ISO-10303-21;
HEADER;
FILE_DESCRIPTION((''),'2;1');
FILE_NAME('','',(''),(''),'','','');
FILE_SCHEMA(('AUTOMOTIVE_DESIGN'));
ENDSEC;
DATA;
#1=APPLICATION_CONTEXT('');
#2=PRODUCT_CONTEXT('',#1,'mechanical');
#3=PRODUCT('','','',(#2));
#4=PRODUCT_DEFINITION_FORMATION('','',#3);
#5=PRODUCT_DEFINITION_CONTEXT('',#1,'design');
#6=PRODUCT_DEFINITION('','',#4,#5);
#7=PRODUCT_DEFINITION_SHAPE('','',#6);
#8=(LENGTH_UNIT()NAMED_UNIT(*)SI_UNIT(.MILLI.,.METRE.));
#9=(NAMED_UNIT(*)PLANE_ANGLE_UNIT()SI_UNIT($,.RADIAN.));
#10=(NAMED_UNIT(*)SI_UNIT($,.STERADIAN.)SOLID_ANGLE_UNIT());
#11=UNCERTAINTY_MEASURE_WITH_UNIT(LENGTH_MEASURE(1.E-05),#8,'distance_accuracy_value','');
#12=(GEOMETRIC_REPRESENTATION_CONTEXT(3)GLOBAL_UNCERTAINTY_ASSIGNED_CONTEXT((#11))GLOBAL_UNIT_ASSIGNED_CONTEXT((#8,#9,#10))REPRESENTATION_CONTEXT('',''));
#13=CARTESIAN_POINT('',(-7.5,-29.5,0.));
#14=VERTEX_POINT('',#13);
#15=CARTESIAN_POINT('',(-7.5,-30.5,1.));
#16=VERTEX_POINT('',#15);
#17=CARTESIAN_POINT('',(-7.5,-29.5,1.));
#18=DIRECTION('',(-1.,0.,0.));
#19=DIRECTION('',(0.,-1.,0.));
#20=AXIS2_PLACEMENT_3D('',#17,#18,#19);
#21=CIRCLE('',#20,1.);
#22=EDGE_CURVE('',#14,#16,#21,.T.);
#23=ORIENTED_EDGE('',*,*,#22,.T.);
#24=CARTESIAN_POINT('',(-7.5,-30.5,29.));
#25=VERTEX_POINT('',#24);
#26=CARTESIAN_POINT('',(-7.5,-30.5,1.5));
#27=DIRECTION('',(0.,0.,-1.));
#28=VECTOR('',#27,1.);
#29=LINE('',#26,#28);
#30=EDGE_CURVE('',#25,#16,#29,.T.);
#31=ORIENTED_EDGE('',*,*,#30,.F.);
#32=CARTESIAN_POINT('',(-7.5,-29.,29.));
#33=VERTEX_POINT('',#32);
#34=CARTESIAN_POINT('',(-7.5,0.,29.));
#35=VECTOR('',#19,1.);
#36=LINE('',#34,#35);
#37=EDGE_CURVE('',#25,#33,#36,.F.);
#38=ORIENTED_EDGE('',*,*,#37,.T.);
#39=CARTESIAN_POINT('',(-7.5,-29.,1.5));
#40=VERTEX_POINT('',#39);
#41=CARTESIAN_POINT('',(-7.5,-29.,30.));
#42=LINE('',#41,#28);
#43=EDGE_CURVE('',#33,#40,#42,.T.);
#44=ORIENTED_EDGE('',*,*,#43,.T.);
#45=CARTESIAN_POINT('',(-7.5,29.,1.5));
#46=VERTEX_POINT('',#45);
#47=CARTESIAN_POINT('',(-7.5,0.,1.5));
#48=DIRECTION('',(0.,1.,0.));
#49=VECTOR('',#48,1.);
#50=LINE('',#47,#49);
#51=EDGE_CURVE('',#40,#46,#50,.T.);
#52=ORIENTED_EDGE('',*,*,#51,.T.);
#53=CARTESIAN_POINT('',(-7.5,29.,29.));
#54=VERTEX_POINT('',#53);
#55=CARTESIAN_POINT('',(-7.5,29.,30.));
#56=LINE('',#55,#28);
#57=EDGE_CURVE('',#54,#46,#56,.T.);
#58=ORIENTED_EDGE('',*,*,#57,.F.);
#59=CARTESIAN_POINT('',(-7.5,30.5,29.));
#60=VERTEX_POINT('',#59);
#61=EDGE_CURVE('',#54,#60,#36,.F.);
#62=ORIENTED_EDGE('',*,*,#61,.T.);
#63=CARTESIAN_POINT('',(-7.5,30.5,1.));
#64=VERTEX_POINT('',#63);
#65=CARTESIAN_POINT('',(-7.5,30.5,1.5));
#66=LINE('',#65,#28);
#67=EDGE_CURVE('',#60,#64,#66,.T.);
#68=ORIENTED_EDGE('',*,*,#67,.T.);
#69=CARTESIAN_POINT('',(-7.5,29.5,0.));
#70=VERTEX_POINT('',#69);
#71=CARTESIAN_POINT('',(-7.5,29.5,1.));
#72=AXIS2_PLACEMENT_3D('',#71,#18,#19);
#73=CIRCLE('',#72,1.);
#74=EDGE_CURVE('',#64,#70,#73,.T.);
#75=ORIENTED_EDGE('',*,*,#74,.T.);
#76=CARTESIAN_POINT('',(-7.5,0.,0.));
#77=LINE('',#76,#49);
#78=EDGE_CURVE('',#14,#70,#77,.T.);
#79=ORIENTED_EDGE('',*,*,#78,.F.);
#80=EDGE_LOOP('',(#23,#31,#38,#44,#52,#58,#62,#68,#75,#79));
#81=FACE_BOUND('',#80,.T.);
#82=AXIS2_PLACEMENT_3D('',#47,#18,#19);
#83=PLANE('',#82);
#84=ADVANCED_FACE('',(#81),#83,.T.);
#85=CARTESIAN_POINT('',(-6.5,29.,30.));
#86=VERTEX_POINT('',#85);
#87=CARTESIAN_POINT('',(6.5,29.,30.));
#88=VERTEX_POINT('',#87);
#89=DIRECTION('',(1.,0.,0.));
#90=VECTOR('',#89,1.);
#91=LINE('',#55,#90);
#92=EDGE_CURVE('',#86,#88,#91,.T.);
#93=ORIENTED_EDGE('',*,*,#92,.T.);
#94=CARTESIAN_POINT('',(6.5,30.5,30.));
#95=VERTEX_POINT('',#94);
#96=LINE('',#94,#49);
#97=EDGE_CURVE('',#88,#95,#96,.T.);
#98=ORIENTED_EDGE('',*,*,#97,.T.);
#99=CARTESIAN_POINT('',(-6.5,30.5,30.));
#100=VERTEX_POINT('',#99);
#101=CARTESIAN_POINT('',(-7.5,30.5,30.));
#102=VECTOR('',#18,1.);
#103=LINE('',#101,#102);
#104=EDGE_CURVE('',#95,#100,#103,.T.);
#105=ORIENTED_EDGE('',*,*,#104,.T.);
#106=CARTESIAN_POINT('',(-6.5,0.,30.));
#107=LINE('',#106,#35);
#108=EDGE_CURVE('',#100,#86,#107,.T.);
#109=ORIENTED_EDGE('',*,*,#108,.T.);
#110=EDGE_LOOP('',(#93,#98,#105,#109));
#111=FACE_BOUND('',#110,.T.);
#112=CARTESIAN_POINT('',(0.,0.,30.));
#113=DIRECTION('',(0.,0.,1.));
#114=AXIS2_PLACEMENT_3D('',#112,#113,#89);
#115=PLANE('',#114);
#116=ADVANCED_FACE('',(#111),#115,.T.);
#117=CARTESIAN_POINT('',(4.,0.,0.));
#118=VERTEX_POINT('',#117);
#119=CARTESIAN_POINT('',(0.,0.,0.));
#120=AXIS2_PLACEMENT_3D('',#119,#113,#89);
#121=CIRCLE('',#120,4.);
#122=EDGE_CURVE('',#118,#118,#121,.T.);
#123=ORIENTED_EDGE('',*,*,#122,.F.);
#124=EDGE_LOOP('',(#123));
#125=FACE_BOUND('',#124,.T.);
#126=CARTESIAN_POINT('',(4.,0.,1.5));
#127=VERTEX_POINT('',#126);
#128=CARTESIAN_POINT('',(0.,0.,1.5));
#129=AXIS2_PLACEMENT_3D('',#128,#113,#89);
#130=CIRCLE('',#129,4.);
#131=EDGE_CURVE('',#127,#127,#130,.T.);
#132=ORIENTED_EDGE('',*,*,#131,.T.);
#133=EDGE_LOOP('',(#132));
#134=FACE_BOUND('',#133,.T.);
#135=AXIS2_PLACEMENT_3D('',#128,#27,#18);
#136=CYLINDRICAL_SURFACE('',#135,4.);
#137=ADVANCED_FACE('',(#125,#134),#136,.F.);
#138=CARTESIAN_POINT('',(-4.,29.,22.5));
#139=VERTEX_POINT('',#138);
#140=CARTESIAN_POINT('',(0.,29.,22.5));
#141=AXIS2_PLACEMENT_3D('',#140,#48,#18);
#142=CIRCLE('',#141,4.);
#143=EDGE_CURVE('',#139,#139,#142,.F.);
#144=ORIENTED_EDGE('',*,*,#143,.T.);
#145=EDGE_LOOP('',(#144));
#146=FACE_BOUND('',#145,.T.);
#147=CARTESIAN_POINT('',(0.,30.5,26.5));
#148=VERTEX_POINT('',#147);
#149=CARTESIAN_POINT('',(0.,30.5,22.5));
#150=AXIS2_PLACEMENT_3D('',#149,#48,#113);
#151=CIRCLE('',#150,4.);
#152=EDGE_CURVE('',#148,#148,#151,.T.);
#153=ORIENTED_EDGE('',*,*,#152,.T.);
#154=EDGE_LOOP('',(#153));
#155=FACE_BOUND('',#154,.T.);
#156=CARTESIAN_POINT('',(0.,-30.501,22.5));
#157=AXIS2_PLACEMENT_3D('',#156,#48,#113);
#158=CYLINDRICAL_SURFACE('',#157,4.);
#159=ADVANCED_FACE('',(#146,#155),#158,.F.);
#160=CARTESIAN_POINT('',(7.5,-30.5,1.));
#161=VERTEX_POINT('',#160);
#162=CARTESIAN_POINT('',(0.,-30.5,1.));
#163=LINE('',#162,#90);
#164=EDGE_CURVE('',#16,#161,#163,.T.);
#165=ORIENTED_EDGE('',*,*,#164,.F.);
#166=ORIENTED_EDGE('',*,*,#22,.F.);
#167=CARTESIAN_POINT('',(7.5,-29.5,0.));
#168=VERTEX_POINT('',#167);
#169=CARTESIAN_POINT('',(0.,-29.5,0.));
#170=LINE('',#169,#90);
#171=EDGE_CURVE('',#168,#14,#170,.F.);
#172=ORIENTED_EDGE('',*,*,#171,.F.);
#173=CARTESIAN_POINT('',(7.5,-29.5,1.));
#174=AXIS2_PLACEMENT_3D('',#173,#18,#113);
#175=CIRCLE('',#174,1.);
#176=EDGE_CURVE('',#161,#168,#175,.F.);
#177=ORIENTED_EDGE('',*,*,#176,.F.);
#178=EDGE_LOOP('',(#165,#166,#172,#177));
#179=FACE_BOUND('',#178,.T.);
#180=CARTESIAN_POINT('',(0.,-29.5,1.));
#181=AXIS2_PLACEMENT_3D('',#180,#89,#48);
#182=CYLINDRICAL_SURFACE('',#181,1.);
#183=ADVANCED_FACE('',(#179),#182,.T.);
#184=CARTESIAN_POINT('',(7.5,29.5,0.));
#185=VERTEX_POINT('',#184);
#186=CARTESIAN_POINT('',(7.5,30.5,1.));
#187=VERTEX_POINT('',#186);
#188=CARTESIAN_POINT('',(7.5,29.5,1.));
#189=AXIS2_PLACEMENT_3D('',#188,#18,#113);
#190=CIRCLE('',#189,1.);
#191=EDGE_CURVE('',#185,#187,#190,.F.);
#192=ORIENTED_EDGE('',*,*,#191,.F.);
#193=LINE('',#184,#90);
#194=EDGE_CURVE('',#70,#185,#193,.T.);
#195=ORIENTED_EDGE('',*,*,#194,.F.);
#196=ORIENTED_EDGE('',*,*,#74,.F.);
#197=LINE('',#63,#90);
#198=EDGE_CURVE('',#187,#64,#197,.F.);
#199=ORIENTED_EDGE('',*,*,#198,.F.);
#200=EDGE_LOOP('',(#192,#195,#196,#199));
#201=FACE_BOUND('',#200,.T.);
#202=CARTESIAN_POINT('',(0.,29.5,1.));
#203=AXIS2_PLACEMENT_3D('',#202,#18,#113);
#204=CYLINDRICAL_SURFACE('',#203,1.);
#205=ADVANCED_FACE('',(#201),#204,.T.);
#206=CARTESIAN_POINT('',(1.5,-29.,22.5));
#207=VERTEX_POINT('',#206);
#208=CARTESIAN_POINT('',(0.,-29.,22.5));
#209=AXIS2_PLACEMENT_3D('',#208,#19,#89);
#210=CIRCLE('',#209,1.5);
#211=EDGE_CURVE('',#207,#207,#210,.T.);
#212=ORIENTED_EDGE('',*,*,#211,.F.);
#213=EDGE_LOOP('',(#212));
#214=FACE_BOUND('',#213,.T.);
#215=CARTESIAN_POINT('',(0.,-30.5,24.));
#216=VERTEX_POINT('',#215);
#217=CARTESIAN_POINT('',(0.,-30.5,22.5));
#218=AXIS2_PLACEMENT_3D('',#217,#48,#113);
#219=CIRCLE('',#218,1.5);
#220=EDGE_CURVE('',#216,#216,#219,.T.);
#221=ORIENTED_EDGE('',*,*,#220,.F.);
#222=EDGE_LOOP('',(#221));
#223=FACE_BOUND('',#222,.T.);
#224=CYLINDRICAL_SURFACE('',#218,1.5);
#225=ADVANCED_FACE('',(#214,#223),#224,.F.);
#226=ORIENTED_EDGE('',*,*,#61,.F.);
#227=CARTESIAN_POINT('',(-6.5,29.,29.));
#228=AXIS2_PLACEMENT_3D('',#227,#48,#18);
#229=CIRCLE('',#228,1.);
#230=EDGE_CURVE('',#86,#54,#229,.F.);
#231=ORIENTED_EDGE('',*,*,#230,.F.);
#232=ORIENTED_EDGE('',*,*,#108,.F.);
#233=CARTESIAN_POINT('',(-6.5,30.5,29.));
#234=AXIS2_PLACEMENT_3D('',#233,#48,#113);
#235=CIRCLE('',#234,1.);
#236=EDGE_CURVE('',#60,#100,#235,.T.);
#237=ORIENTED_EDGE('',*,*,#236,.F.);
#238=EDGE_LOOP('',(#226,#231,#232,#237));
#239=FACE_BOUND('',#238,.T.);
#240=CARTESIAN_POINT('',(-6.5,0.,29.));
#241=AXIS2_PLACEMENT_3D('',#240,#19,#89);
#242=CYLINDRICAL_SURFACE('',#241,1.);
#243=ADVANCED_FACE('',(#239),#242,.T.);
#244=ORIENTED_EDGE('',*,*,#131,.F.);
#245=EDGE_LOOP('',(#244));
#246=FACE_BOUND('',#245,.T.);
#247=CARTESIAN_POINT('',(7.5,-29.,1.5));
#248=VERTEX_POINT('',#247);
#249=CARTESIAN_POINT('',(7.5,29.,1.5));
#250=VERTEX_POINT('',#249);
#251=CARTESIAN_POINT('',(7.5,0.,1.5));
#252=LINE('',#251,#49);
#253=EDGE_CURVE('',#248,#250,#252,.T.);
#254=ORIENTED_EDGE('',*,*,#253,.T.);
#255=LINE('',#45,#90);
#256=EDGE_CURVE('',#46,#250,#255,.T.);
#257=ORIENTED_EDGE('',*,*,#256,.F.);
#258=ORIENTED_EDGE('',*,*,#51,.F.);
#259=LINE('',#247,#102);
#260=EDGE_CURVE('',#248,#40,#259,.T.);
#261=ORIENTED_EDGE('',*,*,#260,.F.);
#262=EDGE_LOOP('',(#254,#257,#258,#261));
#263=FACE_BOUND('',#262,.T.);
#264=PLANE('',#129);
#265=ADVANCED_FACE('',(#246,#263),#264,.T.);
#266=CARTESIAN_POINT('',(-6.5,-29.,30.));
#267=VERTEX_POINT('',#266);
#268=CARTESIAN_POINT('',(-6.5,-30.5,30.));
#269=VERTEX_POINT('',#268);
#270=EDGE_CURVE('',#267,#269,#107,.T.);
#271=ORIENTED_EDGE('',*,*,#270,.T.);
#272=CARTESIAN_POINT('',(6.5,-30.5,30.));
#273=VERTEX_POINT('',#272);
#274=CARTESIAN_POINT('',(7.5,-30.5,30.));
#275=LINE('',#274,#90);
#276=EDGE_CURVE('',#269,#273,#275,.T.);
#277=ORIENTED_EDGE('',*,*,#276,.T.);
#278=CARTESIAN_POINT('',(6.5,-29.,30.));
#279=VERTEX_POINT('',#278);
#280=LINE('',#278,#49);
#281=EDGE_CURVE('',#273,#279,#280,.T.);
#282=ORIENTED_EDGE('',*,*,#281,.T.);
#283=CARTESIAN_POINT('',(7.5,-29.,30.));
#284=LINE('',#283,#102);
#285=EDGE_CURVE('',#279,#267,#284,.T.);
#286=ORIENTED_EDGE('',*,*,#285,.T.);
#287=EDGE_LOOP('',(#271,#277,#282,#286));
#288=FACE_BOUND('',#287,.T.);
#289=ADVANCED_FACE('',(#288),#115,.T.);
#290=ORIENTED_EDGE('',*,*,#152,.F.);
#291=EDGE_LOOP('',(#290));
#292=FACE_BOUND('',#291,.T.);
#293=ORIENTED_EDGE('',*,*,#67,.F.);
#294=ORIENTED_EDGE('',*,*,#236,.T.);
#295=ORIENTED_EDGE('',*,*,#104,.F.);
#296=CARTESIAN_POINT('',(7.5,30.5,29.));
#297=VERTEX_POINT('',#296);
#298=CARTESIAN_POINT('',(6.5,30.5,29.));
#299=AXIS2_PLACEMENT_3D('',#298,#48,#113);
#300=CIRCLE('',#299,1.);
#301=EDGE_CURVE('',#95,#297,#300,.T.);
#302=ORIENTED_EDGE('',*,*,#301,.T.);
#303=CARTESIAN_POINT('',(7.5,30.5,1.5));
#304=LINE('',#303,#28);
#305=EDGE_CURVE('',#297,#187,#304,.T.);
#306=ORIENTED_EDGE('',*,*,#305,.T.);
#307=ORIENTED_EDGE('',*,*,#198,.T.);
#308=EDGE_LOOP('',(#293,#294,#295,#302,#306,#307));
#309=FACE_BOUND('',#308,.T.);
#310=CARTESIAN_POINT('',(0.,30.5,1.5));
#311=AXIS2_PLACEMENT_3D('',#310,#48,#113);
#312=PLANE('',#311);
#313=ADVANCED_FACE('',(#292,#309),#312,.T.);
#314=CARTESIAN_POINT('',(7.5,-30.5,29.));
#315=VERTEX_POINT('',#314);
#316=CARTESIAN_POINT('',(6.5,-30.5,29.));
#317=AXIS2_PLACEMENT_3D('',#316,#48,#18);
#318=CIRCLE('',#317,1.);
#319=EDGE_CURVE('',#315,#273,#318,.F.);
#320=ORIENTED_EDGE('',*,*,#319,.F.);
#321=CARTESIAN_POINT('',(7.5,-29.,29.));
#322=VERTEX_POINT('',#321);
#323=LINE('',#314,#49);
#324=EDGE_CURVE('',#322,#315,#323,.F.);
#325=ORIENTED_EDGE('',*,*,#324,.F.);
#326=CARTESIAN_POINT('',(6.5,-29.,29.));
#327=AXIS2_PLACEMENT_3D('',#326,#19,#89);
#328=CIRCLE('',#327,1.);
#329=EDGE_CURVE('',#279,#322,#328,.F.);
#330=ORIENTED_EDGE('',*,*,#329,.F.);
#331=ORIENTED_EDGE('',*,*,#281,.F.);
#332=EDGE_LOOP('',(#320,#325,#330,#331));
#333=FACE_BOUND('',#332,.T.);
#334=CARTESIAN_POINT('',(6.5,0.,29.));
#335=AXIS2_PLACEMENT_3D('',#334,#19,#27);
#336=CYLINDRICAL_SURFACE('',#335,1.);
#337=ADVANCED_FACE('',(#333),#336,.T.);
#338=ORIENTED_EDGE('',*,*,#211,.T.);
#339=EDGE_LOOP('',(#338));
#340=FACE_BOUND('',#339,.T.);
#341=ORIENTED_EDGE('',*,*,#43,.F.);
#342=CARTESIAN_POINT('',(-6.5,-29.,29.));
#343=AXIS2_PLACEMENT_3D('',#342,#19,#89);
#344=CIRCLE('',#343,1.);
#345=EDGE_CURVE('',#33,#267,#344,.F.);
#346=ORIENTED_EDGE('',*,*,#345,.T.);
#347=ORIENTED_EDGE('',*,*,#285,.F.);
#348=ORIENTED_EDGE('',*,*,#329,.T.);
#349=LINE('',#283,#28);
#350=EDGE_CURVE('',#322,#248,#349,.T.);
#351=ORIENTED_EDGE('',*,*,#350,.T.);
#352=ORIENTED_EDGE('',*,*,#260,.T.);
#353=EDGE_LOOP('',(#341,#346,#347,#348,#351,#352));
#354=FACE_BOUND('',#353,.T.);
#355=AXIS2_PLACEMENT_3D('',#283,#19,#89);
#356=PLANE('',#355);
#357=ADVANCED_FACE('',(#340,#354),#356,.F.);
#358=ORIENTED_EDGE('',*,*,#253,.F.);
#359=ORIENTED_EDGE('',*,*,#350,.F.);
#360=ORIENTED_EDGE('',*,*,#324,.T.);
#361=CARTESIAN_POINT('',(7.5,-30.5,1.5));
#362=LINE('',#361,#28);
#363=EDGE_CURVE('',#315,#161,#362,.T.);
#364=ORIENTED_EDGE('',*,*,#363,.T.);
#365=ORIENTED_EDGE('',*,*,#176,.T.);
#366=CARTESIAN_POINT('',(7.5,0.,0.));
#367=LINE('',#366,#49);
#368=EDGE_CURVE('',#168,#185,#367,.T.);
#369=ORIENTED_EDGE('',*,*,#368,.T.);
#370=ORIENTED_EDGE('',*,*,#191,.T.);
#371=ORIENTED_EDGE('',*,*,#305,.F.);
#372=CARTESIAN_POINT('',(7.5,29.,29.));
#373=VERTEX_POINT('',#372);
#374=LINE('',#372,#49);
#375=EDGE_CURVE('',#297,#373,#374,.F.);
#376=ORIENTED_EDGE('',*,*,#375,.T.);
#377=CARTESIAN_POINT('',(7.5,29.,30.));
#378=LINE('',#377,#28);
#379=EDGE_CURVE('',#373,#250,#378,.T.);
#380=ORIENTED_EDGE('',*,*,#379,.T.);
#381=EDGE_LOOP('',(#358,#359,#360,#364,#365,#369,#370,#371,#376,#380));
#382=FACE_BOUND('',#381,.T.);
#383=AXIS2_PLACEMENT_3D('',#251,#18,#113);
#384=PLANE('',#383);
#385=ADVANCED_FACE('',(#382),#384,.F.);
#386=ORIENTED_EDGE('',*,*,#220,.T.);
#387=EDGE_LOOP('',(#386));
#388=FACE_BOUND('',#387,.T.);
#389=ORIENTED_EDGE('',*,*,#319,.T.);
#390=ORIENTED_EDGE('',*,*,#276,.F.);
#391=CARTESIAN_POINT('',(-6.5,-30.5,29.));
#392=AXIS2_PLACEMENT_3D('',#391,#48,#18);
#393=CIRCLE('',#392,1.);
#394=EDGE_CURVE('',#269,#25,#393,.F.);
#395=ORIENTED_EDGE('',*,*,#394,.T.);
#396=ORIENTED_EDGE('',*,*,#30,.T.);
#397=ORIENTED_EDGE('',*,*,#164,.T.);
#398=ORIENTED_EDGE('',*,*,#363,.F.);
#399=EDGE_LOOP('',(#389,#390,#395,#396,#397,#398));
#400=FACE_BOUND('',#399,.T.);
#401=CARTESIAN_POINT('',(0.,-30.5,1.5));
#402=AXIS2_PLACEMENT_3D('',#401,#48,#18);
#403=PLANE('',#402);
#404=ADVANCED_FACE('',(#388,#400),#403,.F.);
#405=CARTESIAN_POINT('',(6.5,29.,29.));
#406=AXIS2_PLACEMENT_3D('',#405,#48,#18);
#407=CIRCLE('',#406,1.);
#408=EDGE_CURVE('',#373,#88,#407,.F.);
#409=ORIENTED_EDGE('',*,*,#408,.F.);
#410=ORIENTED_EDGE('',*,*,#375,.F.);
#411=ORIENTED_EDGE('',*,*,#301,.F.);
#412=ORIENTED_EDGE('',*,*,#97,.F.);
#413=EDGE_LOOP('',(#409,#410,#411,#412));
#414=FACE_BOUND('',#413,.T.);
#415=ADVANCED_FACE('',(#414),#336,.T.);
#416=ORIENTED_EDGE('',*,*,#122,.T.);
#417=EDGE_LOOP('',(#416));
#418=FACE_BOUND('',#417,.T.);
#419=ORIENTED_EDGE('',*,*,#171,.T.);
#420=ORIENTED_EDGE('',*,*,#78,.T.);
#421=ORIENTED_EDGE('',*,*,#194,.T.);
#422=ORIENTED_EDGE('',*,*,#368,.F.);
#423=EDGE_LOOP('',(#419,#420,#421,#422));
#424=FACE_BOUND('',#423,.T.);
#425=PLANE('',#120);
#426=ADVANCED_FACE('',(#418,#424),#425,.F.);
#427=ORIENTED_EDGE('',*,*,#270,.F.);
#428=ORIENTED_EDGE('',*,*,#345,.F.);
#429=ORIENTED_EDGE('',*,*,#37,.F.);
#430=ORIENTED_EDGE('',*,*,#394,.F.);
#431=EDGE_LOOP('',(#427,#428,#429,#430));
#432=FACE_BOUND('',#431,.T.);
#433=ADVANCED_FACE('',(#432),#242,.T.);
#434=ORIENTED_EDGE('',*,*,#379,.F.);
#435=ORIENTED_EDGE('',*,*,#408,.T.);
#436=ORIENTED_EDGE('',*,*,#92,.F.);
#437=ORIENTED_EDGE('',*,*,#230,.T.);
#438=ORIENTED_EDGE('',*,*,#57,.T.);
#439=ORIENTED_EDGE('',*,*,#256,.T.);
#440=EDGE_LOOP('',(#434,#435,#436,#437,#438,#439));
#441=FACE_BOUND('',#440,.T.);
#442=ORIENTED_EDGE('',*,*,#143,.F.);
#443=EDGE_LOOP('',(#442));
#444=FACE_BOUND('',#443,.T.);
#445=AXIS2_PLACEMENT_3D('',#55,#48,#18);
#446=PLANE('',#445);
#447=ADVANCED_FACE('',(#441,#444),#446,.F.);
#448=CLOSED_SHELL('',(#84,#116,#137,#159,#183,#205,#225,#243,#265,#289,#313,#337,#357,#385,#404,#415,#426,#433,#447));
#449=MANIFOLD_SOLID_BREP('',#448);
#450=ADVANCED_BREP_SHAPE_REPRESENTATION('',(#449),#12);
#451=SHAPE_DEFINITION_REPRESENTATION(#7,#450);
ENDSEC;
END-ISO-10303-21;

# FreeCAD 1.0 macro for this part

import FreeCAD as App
import Part
import Sketcher
from FreeCAD import Vector
Q = App.Units.Quantity


def edges_at(feature, points):
    """Names of the edges that pass closest to the given points."""
    edges = feature.Shape.Edges
    near = lambda p: min(range(len(edges)), key=lambda i: edges[i].distToShape(Part.Vertex(*p))[0])
    return sorted({f"Edge{near(p) + 1}" for p in points})


def add_polygon(sketch, points):
    """Adds a closed chain of lines whose ends are joined by coincident constraints."""
    first, n = sketch.GeometryCount, len(points)
    for a, b in zip(points, points[1:] + points[:1]):
        sketch.addGeometry(Part.LineSegment(App.Vector(*a, 0), App.Vector(*b, 0)), False)
    for i in range(n):
        sketch.addConstraint(Sketcher.Constraint("Coincident", first + i, 2, first + (i + 1) % n, 1))

doc = App.newDocument("Part")
body = doc.addObject("PartDesign::Body", "Body")

# Sketch on XY plane
sketch1 = body.newObject("Sketcher::SketchObject", "Sketch")
sketch1.AttachmentSupport = (doc.getObject("XY_Plane"), [""])
sketch1.MapMode = "FlatFace"
add_polygon(sketch1, [(-7.5, -30.5), (7.5, -30.5), (7.5, 30.5), (-7.5, 30.5)])  # lines 0-3
sketch1.addGeometry(Part.Circle(Vector(0, 0, 0), Vector(0, 0, 1), 4), False)  # 4
sketch1.addConstraint([
    Sketcher.Constraint("Horizontal", 0),
    Sketcher.Constraint("Vertical", 1),
    Sketcher.Constraint("Horizontal", 2),
    Sketcher.Constraint("Vertical", 3),
    Sketcher.Constraint("Coincident", 4, 3, -1, 1),
    Sketcher.Constraint("Symmetric", 0, 2, 2, 2, -1, 1),
    Sketcher.Constraint("Diameter", 4, Q("8 mm")),
    Sketcher.Constraint("DistanceX", 0, 1, 0, 2, Q("15 mm")),
    Sketcher.Constraint("DistanceY", 1, 1, 1, 2, Q("61 mm")),
])
pad1 = body.newObject("PartDesign::Pad", "Pad")
pad1.Profile = sketch1
pad1.Length = 1.5

# Sketch on XY plane
sketch2 = body.newObject("Sketcher::SketchObject", "Sketch001")
sketch2.AttachmentSupport = (doc.getObject("XY_Plane"), [""])
sketch2.MapMode = "FlatFace"
sketch2.AttachmentOffset = App.Placement(Vector(0, 0, 1.5), App.Rotation())
add_polygon(sketch2, [(-7.5, 30.5), (-7.5, 29), (7.5, 29), (7.5, 30.5)])  # lines 0-3
add_polygon(sketch2, [(-7.5, -29), (-7.5, -30.5), (7.5, -30.5), (7.5, -29)])  # lines 4-7
sketch2.addConstraint([
    Sketcher.Constraint("Vertical", 0),
    Sketcher.Constraint("Horizontal", 1),
    Sketcher.Constraint("Vertical", 2),
    Sketcher.Constraint("Horizontal", 3),
    Sketcher.Constraint("Vertical", 4),
    Sketcher.Constraint("Horizontal", 5),
    Sketcher.Constraint("Vertical", 6),
    Sketcher.Constraint("Horizontal", 7),
    Sketcher.Constraint("Symmetric", 2, 2, 4, 2, -1, 1),
    Sketcher.Constraint("Symmetric", 0, 2, 6, 2, -1, 1),
    Sketcher.Constraint("Vertical", 3, 2, 4, 2),
    Sketcher.Constraint("DistanceX", 1, 1, 1, 2, Q("15 mm")),
    Sketcher.Constraint("DistanceY", 0, 2, 0, 1, Q("1.5 mm")),
    Sketcher.Constraint("DistanceY", -1, 1, 0, 2, Q("29 mm")),
])
pad2 = body.newObject("PartDesign::Pad", "Pad001")
pad2.Profile = sketch2
pad2.Length = 28.5

# Sketch on XZ plane
sketch3 = body.newObject("Sketcher::SketchObject", "Sketch002")
sketch3.AttachmentSupport = (doc.getObject("XZ_Plane"), [""])
sketch3.MapMode = "FlatFace"
sketch3.AttachmentOffset = App.Placement(Vector(0, 0, -30.5), App.Rotation())
sketch3.addGeometry(Part.Circle(Vector(0, 22.5, 0), Vector(0, 0, 1), 1.5), False)
sketch3.addConstraint([
    Sketcher.Constraint("PointOnObject", 0, 3, -2),
    Sketcher.Constraint("Diameter", 0, Q("3 mm")),
    Sketcher.Constraint("DistanceY", -1, 1, 0, 3, Q("22.5 mm")),
])
pocket1 = body.newObject("PartDesign::Pocket", "Pocket")
pocket1.Profile = sketch3
pocket1.Type = "ThroughAll"
pocket1.Reversed = True
doc.recompute()

fillet = body.newObject("PartDesign::Fillet", "Fillet")
fillet.Base = (pocket1, edges_at(pocket1, [
    (0, -30.5, 0),
    (-7.5, -29.75, 30),
    (7.5, -29.75, 30),
    (7.5, 29.75, 30),
    (-7.5, 29.75, 30),
    (0, 30.5, 0),
]))
fillet.Radius = 1

# Sketch on XZ plane
sketch4 = body.newObject("Sketcher::SketchObject", "Sketch003")
sketch4.AttachmentSupport = (doc.getObject("XZ_Plane"), [""])
sketch4.MapMode = "FlatFace"
sketch4.AttachmentOffset = App.Placement(Vector(0, 0, -30.5), App.Rotation())
sketch4.addGeometry(Part.Circle(Vector(0, 22.5, 0), Vector(0, 0, 1), 4), False)
sketch4.addConstraint([
    Sketcher.Constraint("PointOnObject", 0, 3, -2),
    Sketcher.Constraint("Diameter", 0, Q("8 mm")),
    Sketcher.Constraint("DistanceY", -1, 1, 0, 3, Q("22.5 mm")),
])
pocket2 = body.newObject("PartDesign::Pocket", "Pocket001")
pocket2.Profile = sketch4
pocket2.Length = 1.5
pocket2.Reversed = True

doc.recompute()
